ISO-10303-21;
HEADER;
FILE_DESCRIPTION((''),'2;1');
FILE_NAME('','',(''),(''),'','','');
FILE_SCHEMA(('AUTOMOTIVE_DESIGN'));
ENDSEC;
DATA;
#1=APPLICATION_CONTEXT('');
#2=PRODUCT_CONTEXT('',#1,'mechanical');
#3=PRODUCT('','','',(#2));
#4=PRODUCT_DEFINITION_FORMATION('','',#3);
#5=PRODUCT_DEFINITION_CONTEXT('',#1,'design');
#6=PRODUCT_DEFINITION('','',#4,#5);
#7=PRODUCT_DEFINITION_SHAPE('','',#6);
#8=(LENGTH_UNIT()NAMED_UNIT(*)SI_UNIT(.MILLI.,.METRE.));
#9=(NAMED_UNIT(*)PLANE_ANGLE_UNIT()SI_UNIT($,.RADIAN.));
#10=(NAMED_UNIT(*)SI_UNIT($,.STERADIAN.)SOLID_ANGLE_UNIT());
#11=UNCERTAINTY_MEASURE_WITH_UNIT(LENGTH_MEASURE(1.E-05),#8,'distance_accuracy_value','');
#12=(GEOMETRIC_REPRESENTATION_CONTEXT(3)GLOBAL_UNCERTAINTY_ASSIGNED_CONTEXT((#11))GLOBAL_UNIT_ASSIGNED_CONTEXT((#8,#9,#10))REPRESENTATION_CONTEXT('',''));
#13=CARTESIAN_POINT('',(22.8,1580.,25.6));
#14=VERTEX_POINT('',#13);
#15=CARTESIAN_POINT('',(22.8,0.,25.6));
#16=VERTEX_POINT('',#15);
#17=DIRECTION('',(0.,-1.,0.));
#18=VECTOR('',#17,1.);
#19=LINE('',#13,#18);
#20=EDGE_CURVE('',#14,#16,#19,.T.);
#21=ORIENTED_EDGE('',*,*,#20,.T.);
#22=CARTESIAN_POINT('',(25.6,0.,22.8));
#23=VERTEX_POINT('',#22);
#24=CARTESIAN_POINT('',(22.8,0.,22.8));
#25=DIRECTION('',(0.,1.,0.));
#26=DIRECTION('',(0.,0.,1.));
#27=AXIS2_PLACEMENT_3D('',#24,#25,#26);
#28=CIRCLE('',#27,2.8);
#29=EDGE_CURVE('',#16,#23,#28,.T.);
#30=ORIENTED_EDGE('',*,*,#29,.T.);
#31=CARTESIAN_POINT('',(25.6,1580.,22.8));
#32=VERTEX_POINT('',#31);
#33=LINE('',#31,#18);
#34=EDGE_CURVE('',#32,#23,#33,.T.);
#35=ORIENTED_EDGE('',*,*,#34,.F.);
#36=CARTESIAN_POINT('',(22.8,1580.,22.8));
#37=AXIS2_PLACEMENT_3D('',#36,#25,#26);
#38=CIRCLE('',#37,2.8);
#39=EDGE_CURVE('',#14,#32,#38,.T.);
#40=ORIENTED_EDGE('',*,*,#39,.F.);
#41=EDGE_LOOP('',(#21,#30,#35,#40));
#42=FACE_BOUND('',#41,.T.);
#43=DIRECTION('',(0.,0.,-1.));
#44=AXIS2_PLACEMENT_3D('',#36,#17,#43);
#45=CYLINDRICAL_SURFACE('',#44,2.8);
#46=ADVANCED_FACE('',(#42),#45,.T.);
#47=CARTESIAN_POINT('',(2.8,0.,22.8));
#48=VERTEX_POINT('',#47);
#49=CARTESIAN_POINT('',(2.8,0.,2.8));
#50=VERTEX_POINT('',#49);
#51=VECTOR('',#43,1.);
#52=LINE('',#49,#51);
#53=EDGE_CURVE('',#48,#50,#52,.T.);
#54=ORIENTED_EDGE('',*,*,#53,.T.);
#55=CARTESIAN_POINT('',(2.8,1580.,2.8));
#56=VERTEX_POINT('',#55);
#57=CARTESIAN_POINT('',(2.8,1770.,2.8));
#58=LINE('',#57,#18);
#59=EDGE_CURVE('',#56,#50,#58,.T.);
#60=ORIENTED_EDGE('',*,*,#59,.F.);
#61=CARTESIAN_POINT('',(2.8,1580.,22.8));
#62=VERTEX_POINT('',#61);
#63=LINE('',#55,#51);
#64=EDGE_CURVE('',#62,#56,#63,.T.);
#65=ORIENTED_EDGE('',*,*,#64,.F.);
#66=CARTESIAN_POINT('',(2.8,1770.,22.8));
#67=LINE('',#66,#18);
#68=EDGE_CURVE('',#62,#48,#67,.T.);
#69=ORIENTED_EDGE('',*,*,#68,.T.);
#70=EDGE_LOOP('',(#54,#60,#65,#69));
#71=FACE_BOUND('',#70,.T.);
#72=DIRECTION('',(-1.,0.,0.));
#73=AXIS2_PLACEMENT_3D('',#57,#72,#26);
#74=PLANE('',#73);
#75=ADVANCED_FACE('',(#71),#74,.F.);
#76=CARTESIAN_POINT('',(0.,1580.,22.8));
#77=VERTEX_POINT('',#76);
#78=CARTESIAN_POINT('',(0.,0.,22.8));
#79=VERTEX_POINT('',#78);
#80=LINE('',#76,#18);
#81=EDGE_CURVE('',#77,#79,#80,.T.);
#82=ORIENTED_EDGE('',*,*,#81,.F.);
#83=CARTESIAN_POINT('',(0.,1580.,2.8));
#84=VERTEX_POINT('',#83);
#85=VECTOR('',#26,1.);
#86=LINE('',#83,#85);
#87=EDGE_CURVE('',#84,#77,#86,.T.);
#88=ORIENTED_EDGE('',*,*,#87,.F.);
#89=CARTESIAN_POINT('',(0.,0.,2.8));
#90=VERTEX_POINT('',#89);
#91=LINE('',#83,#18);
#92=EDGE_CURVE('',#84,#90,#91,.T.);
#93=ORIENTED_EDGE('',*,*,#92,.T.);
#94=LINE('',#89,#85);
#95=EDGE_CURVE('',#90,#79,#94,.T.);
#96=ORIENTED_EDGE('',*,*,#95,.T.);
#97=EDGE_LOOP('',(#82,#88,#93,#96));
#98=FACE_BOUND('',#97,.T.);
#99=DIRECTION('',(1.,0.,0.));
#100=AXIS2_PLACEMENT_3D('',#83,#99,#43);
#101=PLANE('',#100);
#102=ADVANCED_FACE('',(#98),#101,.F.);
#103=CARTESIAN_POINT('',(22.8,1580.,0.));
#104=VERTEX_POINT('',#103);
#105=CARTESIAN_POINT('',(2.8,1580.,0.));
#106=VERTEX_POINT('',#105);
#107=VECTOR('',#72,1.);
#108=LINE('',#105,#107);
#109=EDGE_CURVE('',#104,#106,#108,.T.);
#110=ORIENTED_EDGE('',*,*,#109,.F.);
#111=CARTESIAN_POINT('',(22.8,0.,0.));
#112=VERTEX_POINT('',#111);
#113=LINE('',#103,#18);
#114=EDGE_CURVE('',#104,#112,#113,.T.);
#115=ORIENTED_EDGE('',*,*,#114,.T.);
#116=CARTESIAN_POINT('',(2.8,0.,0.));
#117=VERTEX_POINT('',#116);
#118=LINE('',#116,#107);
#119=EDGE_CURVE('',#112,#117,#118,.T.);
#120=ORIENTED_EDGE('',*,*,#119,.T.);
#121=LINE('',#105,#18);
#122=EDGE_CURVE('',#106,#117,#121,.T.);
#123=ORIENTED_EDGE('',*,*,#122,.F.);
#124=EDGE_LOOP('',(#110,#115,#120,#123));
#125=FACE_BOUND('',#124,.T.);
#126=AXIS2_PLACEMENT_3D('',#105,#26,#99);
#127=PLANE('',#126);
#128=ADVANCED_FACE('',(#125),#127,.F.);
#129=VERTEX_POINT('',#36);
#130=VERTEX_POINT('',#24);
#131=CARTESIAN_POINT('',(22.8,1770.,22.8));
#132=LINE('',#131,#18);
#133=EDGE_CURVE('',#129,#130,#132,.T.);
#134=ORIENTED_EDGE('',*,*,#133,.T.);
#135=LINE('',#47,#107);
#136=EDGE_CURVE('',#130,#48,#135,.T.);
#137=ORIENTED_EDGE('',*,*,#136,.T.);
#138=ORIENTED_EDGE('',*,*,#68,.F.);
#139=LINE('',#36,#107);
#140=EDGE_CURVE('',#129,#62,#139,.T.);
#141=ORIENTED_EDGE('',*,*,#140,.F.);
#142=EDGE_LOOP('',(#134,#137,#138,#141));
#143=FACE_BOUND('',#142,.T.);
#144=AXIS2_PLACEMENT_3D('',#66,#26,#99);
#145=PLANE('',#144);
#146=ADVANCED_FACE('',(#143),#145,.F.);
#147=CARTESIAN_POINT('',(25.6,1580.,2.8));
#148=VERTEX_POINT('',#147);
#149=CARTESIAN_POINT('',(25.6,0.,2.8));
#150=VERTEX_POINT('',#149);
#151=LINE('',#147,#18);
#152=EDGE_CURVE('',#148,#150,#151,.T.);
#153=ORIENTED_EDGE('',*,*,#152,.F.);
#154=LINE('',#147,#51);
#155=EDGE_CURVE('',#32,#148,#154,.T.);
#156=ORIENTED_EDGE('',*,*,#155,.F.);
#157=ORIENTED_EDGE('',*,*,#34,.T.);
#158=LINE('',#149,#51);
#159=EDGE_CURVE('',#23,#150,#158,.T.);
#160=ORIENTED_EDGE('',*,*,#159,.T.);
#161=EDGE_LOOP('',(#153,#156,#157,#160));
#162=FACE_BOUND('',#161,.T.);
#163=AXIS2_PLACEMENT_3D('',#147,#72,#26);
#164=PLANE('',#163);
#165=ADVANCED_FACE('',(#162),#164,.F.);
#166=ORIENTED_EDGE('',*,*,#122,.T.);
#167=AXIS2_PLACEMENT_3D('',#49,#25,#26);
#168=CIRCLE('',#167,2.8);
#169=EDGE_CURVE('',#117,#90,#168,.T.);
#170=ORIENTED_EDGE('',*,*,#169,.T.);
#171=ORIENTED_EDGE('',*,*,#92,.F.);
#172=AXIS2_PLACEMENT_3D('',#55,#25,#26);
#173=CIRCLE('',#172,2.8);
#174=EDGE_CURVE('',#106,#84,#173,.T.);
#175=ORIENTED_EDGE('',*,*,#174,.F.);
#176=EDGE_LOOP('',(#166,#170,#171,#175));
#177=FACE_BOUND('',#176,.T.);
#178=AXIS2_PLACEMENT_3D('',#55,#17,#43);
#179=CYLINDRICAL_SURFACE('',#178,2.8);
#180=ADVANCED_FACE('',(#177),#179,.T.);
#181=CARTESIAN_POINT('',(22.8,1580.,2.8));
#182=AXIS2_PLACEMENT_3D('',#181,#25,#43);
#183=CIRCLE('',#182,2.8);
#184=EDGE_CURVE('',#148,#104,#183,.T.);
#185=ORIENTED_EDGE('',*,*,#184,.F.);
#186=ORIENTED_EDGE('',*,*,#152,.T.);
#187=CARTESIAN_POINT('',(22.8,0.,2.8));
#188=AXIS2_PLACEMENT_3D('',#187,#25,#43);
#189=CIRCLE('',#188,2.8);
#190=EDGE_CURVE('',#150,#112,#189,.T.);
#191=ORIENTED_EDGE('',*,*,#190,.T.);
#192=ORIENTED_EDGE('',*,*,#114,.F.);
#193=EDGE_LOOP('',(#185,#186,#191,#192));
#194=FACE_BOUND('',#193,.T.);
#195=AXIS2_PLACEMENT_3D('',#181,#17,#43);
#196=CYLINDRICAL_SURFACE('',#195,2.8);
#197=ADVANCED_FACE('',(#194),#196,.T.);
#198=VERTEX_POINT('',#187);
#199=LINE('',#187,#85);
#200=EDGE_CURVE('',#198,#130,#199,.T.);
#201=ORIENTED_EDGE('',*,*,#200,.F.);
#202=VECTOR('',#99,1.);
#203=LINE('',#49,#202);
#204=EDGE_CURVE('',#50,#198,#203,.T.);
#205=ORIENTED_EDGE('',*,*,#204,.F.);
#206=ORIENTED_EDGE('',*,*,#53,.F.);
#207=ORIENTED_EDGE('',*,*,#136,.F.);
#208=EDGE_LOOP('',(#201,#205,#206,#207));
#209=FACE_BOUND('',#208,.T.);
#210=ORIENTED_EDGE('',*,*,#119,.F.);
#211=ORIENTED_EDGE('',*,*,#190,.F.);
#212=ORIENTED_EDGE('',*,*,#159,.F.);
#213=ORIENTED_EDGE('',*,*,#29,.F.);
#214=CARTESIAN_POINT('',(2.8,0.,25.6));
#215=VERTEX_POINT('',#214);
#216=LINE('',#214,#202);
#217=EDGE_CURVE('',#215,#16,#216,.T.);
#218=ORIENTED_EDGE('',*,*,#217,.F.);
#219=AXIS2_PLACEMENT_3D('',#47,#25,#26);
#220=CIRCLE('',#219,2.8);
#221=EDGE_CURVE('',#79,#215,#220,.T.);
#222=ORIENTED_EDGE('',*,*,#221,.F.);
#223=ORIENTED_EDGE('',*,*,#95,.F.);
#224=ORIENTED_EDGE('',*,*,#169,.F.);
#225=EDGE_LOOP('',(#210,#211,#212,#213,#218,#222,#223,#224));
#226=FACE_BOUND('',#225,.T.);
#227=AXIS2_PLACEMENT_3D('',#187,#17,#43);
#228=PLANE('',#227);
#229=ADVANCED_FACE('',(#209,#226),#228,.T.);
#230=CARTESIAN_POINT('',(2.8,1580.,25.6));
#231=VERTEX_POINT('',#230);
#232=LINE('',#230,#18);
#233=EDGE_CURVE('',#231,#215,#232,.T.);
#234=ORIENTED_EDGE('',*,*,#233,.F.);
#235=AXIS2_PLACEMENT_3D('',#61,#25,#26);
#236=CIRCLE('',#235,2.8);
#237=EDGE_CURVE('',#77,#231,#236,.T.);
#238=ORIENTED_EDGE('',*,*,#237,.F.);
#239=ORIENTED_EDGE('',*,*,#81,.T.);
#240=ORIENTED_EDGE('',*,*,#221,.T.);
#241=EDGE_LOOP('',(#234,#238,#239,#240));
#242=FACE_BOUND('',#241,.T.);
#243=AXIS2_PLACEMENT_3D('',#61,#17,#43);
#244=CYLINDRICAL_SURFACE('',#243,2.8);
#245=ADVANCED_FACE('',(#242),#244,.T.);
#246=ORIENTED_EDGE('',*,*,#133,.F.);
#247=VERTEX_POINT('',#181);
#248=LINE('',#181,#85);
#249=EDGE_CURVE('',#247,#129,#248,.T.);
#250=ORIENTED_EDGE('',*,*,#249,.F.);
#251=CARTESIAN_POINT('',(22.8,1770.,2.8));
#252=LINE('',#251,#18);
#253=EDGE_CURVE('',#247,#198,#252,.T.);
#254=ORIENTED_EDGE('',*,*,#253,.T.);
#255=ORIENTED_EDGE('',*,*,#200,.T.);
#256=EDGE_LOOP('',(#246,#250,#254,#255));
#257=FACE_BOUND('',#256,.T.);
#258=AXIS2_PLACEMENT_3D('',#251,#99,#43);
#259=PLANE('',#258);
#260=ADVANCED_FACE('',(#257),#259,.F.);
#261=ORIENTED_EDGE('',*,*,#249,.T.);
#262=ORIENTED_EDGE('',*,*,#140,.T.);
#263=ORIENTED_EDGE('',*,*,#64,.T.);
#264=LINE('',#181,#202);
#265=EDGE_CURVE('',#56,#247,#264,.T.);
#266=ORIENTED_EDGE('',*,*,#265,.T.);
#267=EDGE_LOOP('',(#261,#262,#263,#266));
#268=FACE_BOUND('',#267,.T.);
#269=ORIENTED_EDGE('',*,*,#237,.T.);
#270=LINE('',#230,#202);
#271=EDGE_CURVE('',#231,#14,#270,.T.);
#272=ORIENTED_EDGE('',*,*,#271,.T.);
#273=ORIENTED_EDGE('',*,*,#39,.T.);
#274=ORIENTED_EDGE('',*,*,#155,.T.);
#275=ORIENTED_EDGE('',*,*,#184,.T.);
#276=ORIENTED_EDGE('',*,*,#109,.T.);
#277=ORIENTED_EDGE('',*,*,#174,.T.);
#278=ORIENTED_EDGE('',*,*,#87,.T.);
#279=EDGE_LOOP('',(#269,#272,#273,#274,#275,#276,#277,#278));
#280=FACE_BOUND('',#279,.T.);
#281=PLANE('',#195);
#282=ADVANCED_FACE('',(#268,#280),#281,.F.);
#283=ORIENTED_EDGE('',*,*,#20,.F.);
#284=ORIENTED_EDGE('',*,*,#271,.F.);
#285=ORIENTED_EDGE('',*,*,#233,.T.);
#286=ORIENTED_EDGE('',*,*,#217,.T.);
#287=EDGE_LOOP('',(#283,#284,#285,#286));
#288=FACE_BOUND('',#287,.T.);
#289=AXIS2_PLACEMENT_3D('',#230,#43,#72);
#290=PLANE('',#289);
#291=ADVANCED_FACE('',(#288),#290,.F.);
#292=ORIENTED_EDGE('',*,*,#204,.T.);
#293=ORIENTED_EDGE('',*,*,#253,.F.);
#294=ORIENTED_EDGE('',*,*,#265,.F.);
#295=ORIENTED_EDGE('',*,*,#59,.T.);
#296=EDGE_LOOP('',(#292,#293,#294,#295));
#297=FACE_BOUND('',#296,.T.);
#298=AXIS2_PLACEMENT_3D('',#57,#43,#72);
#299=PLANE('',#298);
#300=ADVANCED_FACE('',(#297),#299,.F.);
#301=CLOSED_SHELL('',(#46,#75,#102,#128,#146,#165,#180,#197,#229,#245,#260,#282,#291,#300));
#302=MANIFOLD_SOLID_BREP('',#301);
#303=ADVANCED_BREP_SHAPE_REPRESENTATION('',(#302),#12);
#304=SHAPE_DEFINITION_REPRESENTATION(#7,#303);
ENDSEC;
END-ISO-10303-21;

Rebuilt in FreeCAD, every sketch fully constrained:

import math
import FreeCAD as App
import Part
import Sketcher
from FreeCAD import Vector

doc = App.newDocument("Part")
body = doc.addObject("PartDesign::Body", "Body")

# Sketch on XZ plane
sketch1 = doc.addObject("Sketcher::SketchObject", "Sketch")
body.addObject(sketch1)
sketch1.AttachmentSupport = (doc.XZ_Plane, [""])
sketch1.MapMode = "FlatFace"
sketch1.addGeometry([
    Part.LineSegment(Vector(22.8, 0, 0), Vector(2.8, 0, 0)),  # 0
    Part.ArcOfCircle(Part.Circle(Vector(2.8, 2.8, 0), Vector(0, 0, 1), 2.8), math.radians(-180), math.radians(-90)),  # 1
    Part.LineSegment(Vector(0, 2.8, 0), Vector(0, 22.8, 0)),  # 2
    Part.ArcOfCircle(Part.Circle(Vector(2.8, 22.8, 0), Vector(0, 0, 1), 2.8), math.radians(90), math.radians(180)),  # 3
    Part.LineSegment(Vector(2.8, 25.6, 0), Vector(22.8, 25.6, 0)),  # 4
    Part.ArcOfCircle(Part.Circle(Vector(22.8, 22.8, 0), Vector(0, 0, 1), 2.8), math.radians(0), math.radians(90)),  # 5
    Part.LineSegment(Vector(25.6, 22.8, 0), Vector(25.6, 2.8, 0)),  # 6
    Part.ArcOfCircle(Part.Circle(Vector(22.8, 2.8, 0), Vector(0, 0, 1), 2.8), math.radians(-90), math.radians(0)),  # 7
], False)
sketch1.addConstraint([
    Sketcher.Constraint("Tangent", 0, 2, 1, 2),
    Sketcher.Constraint("Tangent", 1, 1, 2, 1),
    Sketcher.Constraint("Tangent", 2, 2, 3, 2),
    Sketcher.Constraint("Tangent", 3, 1, 4, 1),
    Sketcher.Constraint("Tangent", 4, 2, 5, 2),
    Sketcher.Constraint("Tangent", 5, 1, 6, 1),
    Sketcher.Constraint("Tangent", 6, 2, 7, 2),
    Sketcher.Constraint("Tangent", 7, 1, 0, 1),
    Sketcher.Constraint("Horizontal", 0),
    Sketcher.Constraint("Vertical", 2),
    Sketcher.Constraint("Horizontal", 4),
    Sketcher.Constraint("Vertical", 6),
    Sketcher.Constraint("Equal", 1, 3),
    Sketcher.Constraint("Equal", 3, 5),
    Sketcher.Constraint("Equal", 5, 7),
    Sketcher.Constraint("PointOnObject", 0, 2, -1),
    Sketcher.Constraint("PointOnObject", 1, 1, -2),
    Sketcher.Constraint("Equal", 4, 2),
    Sketcher.Constraint("Radius", 1, 2.8),
    Sketcher.Constraint("DistanceX", 0, 2, 0, 1, 20.0),
])
pad1 = doc.addObject("PartDesign::Pad", "Pad")
body.addObject(pad1)
pad1.Profile = sketch1
pad1.Length = 1580
pad1.Reversed = True

# Sketch on XZ plane
sketch2 = doc.addObject("Sketcher::SketchObject", "Sketch001")
body.addObject(sketch2)
sketch2.AttachmentSupport = (doc.XZ_Plane, [""])
sketch2.MapMode = "FlatFace"
sketch2.addGeometry([
    Part.LineSegment(Vector(22.8, 2.8, 0), Vector(22.8, 22.8, 0)),
    Part.LineSegment(Vector(22.8, 22.8, 0), Vector(2.8, 22.8, 0)),
    Part.LineSegment(Vector(2.8, 22.8, 0), Vector(2.8, 2.8, 0)),
    Part.LineSegment(Vector(2.8, 2.8, 0), Vector(22.8, 2.8, 0)),
], False)
sketch2.addConstraint([
    Sketcher.Constraint("Coincident", 0, 2, 1, 1),
    Sketcher.Constraint("Coincident", 1, 2, 2, 1),
    Sketcher.Constraint("Coincident", 2, 2, 3, 1),
    Sketcher.Constraint("Coincident", 3, 2, 0, 1),
    Sketcher.Constraint("Vertical", 0),
    Sketcher.Constraint("Horizontal", 1),
    Sketcher.Constraint("Vertical", 2),
    Sketcher.Constraint("Horizontal", 3),
    Sketcher.Constraint("Equal", 3, 0),
    Sketcher.Constraint("DistanceX", 1, 2, 1, 1, 20.0),
    Sketcher.Constraint("DistanceX", -1, 1, 0, 2, 22.8),
    Sketcher.Constraint("DistanceY", -1, 1, 0, 2, 22.8),
])
pocket1 = doc.addObject("PartDesign::Pocket", "Pocket")
body.addObject(pocket1)
pocket1.Profile = sketch2
pocket1.Length = 1770

doc.recompute()
